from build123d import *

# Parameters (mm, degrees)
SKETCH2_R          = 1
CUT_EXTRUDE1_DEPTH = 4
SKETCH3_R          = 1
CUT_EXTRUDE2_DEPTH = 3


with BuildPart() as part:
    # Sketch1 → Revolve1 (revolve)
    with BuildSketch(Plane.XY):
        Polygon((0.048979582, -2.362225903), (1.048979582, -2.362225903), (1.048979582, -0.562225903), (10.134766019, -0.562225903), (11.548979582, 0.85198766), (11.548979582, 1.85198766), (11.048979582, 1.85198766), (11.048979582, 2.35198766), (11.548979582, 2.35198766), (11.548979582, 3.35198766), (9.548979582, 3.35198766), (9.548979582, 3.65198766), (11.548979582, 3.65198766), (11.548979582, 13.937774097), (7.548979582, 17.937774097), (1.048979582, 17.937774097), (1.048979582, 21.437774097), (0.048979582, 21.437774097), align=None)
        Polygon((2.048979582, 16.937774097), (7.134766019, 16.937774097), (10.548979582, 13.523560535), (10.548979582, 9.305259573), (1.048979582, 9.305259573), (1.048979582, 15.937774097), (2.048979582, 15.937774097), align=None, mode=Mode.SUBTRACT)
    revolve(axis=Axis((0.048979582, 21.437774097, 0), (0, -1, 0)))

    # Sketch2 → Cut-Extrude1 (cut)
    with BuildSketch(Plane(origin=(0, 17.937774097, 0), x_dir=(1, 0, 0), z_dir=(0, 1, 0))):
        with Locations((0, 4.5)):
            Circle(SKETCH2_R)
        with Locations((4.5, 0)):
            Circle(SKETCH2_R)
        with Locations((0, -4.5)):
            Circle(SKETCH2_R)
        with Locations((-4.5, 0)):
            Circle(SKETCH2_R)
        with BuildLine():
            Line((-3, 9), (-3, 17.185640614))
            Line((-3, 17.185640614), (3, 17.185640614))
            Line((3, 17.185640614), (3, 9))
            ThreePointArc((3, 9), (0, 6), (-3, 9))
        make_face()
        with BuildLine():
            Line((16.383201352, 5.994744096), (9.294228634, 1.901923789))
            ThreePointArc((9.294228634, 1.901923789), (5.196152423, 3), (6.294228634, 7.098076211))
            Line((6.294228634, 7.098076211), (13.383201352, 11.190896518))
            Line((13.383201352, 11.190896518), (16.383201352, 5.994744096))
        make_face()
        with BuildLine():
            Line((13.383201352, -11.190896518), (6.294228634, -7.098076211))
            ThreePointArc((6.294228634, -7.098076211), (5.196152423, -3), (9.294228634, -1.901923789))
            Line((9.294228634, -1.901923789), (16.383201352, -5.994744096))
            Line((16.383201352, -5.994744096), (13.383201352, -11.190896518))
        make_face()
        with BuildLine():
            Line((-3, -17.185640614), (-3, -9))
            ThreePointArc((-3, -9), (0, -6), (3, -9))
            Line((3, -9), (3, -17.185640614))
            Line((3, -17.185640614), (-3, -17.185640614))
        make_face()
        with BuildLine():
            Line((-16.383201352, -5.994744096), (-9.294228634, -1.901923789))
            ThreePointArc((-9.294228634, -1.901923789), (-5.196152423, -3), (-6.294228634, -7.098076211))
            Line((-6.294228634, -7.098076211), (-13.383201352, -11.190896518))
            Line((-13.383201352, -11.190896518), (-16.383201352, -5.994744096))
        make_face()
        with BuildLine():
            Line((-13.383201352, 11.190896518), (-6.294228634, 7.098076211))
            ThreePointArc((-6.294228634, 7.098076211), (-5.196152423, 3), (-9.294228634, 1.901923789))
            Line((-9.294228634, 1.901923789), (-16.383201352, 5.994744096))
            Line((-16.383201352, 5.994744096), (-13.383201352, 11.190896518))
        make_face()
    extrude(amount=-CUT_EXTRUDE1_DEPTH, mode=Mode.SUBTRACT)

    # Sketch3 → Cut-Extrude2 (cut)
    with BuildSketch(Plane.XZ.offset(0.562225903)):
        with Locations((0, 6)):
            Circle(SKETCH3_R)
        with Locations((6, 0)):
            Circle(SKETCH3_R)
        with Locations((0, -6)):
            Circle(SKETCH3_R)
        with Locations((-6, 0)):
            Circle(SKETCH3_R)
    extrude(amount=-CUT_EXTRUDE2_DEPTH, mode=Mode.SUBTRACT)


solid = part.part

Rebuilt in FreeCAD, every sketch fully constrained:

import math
import FreeCAD as App
import Part
import Sketcher
from FreeCAD import Vector
Q = App.Units.Quantity

doc = App.newDocument("Part")
body = doc.addObject("PartDesign::Body", "Body")

sketch1 = body.newObject("Sketcher::SketchObject", "Sketch")
sketch1.AttachmentSupport = (doc.getObject("XY_Plane"), [""])
sketch1.MapMode = "FlatFace"
sketch1.addGeometry(Part.LineSegment(Vector(0.05, -2.36, 0), Vector(1.05, -2.36, 0)), False)
sketch1.addGeometry(Part.LineSegment(Vector(1.05, -2.36, 0), Vector(1.05, -0.56, 0)), False)
sketch1.addGeometry(Part.LineSegment(Vector(1.05, -0.56, 0), Vector(10.13, -0.56, 0)), False)
sketch1.addGeometry(Part.LineSegment(Vector(10.13, -0.56, 0), Vector(11.55, 0.85, 0)), False)
sketch1.addGeometry(Part.LineSegment(Vector(11.55, 0.85, 0), Vector(11.55, 1.85, 0)), False)
sketch1.addGeometry(Part.LineSegment(Vector(11.55, 1.85, 0), Vector(11.05, 1.85, 0)), False)
sketch1.addGeometry(Part.LineSegment(Vector(11.05, 1.85, 0), Vector(11.05, 2.35, 0)), False)
sketch1.addGeometry(Part.LineSegment(Vector(11.05, 2.35, 0), Vector(11.55, 2.35, 0)), False)
sketch1.addGeometry(Part.LineSegment(Vector(11.55, 2.35, 0), Vector(11.55, 3.35, 0)), False)
sketch1.addGeometry(Part.LineSegment(Vector(11.55, 3.35, 0), Vector(9.55, 3.35, 0)), False)
sketch1.addGeometry(Part.LineSegment(Vector(9.55, 3.35, 0), Vector(9.55, 3.65, 0)), False)
sketch1.addGeometry(Part.LineSegment(Vector(9.55, 3.65, 0), Vector(11.55, 3.65, 0)), False)
sketch1.addGeometry(Part.LineSegment(Vector(11.55, 3.65, 0), Vector(11.55, 13.94, 0)), False)
sketch1.addGeometry(Part.LineSegment(Vector(11.55, 13.94, 0), Vector(7.55, 17.94, 0)), False)
sketch1.addGeometry(Part.LineSegment(Vector(7.55, 17.94, 0), Vector(1.05, 17.94, 0)), False)
sketch1.addGeometry(Part.LineSegment(Vector(1.05, 17.94, 0), Vector(1.05, 21.44, 0)), False)
sketch1.addGeometry(Part.LineSegment(Vector(1.05, 21.44, 0), Vector(0.05, 21.44, 0)), False)
sketch1.addGeometry(Part.LineSegment(Vector(0.05, 21.44, 0), Vector(0.05, -2.36, 0)), False)
sketch1.addGeometry(Part.LineSegment(Vector(2.05, 15.94, 0), Vector(2.05, 16.94, 0)), False)
sketch1.addGeometry(Part.LineSegment(Vector(2.05, 16.94, 0), Vector(7.13, 16.94, 0)), False)
sketch1.addGeometry(Part.LineSegment(Vector(7.13, 16.94, 0), Vector(10.55, 13.52, 0)), False)
sketch1.addGeometry(Part.LineSegment(Vector(10.55, 13.52, 0), Vector(10.55, 9.31, 0)), False)
sketch1.addGeometry(Part.LineSegment(Vector(10.55, 9.31, 0), Vector(1.05, 9.31, 0)), False)
sketch1.addGeometry(Part.LineSegment(Vector(1.05, 9.31, 0), Vector(1.05, 15.94, 0)), False)
sketch1.addGeometry(Part.LineSegment(Vector(1.05, 15.94, 0), Vector(2.05, 15.94, 0)), False)
sketch1.addGeometry(Part.LineSegment(Vector(0.05, 21.44, 0), Vector(0.05, -2.36, 0)), True)
sketch1.addConstraint(Sketcher.Constraint("Coincident", 0, 2, 1, 1))
sketch1.addConstraint(Sketcher.Constraint("Coincident", 1, 2, 2, 1))
sketch1.addConstraint(Sketcher.Constraint("Coincident", 2, 2, 3, 1))
sketch1.addConstraint(Sketcher.Constraint("Coincident", 3, 2, 4, 1))
sketch1.addConstraint(Sketcher.Constraint("Coincident", 4, 2, 5, 1))
sketch1.addConstraint(Sketcher.Constraint("Coincident", 5, 2, 6, 1))
sketch1.addConstraint(Sketcher.Constraint("Coincident", 6, 2, 7, 1))
sketch1.addConstraint(Sketcher.Constraint("Coincident", 7, 2, 8, 1))
sketch1.addConstraint(Sketcher.Constraint("Coincident", 8, 2, 9, 1))
sketch1.addConstraint(Sketcher.Constraint("Coincident", 9, 2, 10, 1))
sketch1.addConstraint(Sketcher.Constraint("Coincident", 10, 2, 11, 1))
sketch1.addConstraint(Sketcher.Constraint("Coincident", 11, 2, 12, 1))
sketch1.addConstraint(Sketcher.Constraint("Coincident", 12, 2, 13, 1))
sketch1.addConstraint(Sketcher.Constraint("Coincident", 13, 2, 14, 1))
sketch1.addConstraint(Sketcher.Constraint("Coincident", 14, 2, 15, 1))
sketch1.addConstraint(Sketcher.Constraint("Coincident", 15, 2, 16, 1))
sketch1.addConstraint(Sketcher.Constraint("Coincident", 16, 2, 17, 1))
sketch1.addConstraint(Sketcher.Constraint("Coincident", 17, 2, 0, 1))
sketch1.addConstraint(Sketcher.Constraint("Coincident", 18, 2, 19, 1))
sketch1.addConstraint(Sketcher.Constraint("Coincident", 19, 2, 20, 1))
sketch1.addConstraint(Sketcher.Constraint("Coincident", 20, 2, 21, 1))
sketch1.addConstraint(Sketcher.Constraint("Coincident", 21, 2, 22, 1))
sketch1.addConstraint(Sketcher.Constraint("Coincident", 22, 2, 23, 1))
sketch1.addConstraint(Sketcher.Constraint("Coincident", 23, 2, 24, 1))
sketch1.addConstraint(Sketcher.Constraint("Coincident", 24, 2, 18, 1))
sketch1.addConstraint(Sketcher.Constraint("Horizontal", 0))
sketch1.addConstraint(Sketcher.Constraint("Vertical", 1))
sketch1.addConstraint(Sketcher.Constraint("Horizontal", 2))
sketch1.addConstraint(Sketcher.Constraint("Vertical", 4))
sketch1.addConstraint(Sketcher.Constraint("Horizontal", 5))
sketch1.addConstraint(Sketcher.Constraint("Vertical", 6))
sketch1.addConstraint(Sketcher.Constraint("Horizontal", 7))
sketch1.addConstraint(Sketcher.Constraint("Vertical", 8))
sketch1.addConstraint(Sketcher.Constraint("Horizontal", 9))
sketch1.addConstraint(Sketcher.Constraint("Vertical", 10))
sketch1.addConstraint(Sketcher.Constraint("Horizontal", 11))
sketch1.addConstraint(Sketcher.Constraint("Vertical", 12))
sketch1.addConstraint(Sketcher.Constraint("Horizontal", 14))
sketch1.addConstraint(Sketcher.Constraint("Vertical", 15))
sketch1.addConstraint(Sketcher.Constraint("Horizontal", 16))
sketch1.addConstraint(Sketcher.Constraint("Vertical", 17))
sketch1.addConstraint(Sketcher.Constraint("Vertical", 18))
sketch1.addConstraint(Sketcher.Constraint("Horizontal", 19))
sketch1.addConstraint(Sketcher.Constraint("Vertical", 21))
sketch1.addConstraint(Sketcher.Constraint("Horizontal", 22))
sketch1.addConstraint(Sketcher.Constraint("Vertical", 23))
sketch1.addConstraint(Sketcher.Constraint("Horizontal", 24))
sketch1.addConstraint(Sketcher.Constraint("Vertical", 25))
sketch1.addConstraint(Sketcher.Constraint("Coincident", 25, 1, 16, 2))
sketch1.addConstraint(Sketcher.Constraint("Perpendicular", 3, 13))
sketch1.addConstraint(Sketcher.Constraint("Parallel", 13, 20))
sketch1.addConstraint(Sketcher.Constraint("Horizontal", 0, 2, 25, 2))
sketch1.addConstraint(Sketcher.Constraint("Vertical", 4, 2, 7, 2))
sketch1.addConstraint(Sketcher.Constraint("Vertical", 8, 2, 11, 2))
sketch1.addConstraint(Sketcher.Constraint("Vertical", 1, 2, 14, 2))
sketch1.addConstraint(Sketcher.Constraint("Vertical", 15, 2, 22, 2))
sketch1.addConstraint(Sketcher.Constraint("Equal", 16, 24))
sketch1.addConstraint(Sketcher.Constraint("Equal", 24, 4))
sketch1.addConstraint(Sketcher.Constraint("Equal", 7, 6))
sketch1.addConstraint(Sketcher.Constraint("Equal", 4, 8))
sketch1.addConstraint(Sketcher.Constraint("Equal", 8, 18))
sketch1.addConstraint(Sketcher.Constraint("DistanceX", 0, 1, 0, 2, 1.0))
sketch1.addConstraint(Sketcher.Constraint("DistanceX", 9, 2, 9, 1, 2.0))
sketch1.addConstraint(Sketcher.Constraint("Angle", 3, Q("45 deg")))
sketch1.addConstraint(Sketcher.Constraint("Distance", 3, 2.0))
sketch1.addConstraint(Sketcher.Constraint("DistanceX", 5, 2, 5, 1, 0.5))
sketch1.addConstraint(Sketcher.Constraint("DistanceX", 14, 2, 14, 1, 6.5))
sketch1.addConstraint(Sketcher.Constraint("DistanceX", 22, 2, 22, 1, 9.5))
sketch1.addConstraint(Sketcher.Constraint("DistanceY", 1, 1, 1, 2, 1.8))
sketch1.addConstraint(Sketcher.Constraint("DistanceY", 10, 1, 10, 2, 0.3))
sketch1.addConstraint(Sketcher.Constraint("DistanceY", 15, 1, 15, 2, 3.5))
sketch1.addConstraint(Sketcher.Constraint("DistanceY", 17, 2, 17, 1, 23.8))
sketch1.addConstraint(Sketcher.Constraint("DistanceX", 1, 2, 5, 2, 10.0))
sketch1.addConstraint(Sketcher.Constraint("DistanceY", 18, 2, 14, 2, 1.0))
sketch1.addConstraint(Sketcher.Constraint("DistanceY", 21, 2, 21, 1, 4.218301))
sketch1.addConstraint(Sketcher.Constraint("DistanceX", 19, 1, 19, 2, 5.085786))
sketch1.addConstraint(Sketcher.Constraint("DistanceX", -1, 1, 0, 2, 1.04898))
sketch1.addConstraint(Sketcher.Constraint("DistanceY", -1, 1, 20, 2, 13.523561))
revolution = body.newObject("PartDesign::Revolution", "Revolution")
revolution.Profile = sketch1
revolution.ReferenceAxis = (sketch1, ["Axis0"])
revolution.Angle = 360

sketch2 = body.newObject("Sketcher::SketchObject", "Sketch001")
sketch2.AttachmentSupport = (doc.getObject("XZ_Plane"), [""])
sketch2.MapMode = "FlatFace"
sketch2.AttachmentOffset = App.Placement(Vector(0, 0, -17.937774), App.Rotation())
sketch2.addGeometry(Part.Circle(Vector(0, -4.5, 0), Vector(0, 0, 1), 1), False)
sketch2.addGeometry(Part.Circle(Vector(4.5, 0, 0), Vector(0, 0, 1), 1), False)
sketch2.addGeometry(Part.Circle(Vector(0, 4.5, 0), Vector(0, 0, 1), 1), False)
sketch2.addGeometry(Part.Circle(Vector(-4.5, 0, 0), Vector(0, 0, 1), 1), False)
sketch2.addGeometry(Part.LineSegment(Vector(-3, -17.2, 0), Vector(-3, -9, 0)), False)
sketch2.addGeometry(Part.ArcOfCircle(Part.Circle(Vector(0, -9, 0), Vector(0, 0, 1), 3), math.radians(0), math.radians(180)), False)
sketch2.addGeometry(Part.LineSegment(Vector(3, -9, 0), Vector(3, -17.2, 0)), False)
sketch2.addGeometry(Part.LineSegment(Vector(3, -17.2, 0), Vector(-3, -17.2, 0)), False)
sketch2.addGeometry(Part.LineSegment(Vector(9.3, -1.9, 0), Vector(16.4, -6, 0)), False)
sketch2.addGeometry(Part.LineSegment(Vector(16.4, -6, 0), Vector(13.4, -11.2, 0)), False)
sketch2.addGeometry(Part.LineSegment(Vector(13.4, -11.2, 0), Vector(6.3, -7.1, 0)), False)
sketch2.addGeometry(Part.ArcOfCircle(Part.Circle(Vector(7.8, -4.5, 0), Vector(0, 0, 1), 3), math.radians(60), math.radians(240)), False)
sketch2.addGeometry(Part.LineSegment(Vector(6.3, 7.1, 0), Vector(13.4, 11.2, 0)), False)
sketch2.addGeometry(Part.LineSegment(Vector(13.4, 11.2, 0), Vector(16.4, 6, 0)), False)
sketch2.addGeometry(Part.LineSegment(Vector(16.4, 6, 0), Vector(9.3, 1.9, 0)), False)
sketch2.addGeometry(Part.ArcOfCircle(Part.Circle(Vector(7.8, 4.5, 0), Vector(0, 0, 1), 3), math.radians(120), math.radians(300)), False)
sketch2.addGeometry(Part.LineSegment(Vector(-3, 9, 0), Vector(-3, 17.2, 0)), False)
sketch2.addGeometry(Part.LineSegment(Vector(-3, 17.2, 0), Vector(3, 17.2, 0)), False)
sketch2.addGeometry(Part.LineSegment(Vector(3, 17.2, 0), Vector(3, 9, 0)), False)
sketch2.addGeometry(Part.ArcOfCircle(Part.Circle(Vector(0, 9, 0), Vector(0, 0, 1), 3), math.radians(180), math.radians(360)), False)
sketch2.addGeometry(Part.LineSegment(Vector(-9.3, 1.9, 0), Vector(-16.4, 6, 0)), False)
sketch2.addGeometry(Part.LineSegment(Vector(-16.4, 6, 0), Vector(-13.4, 11.2, 0)), False)
sketch2.addGeometry(Part.LineSegment(Vector(-13.4, 11.2, 0), Vector(-6.3, 7.1, 0)), False)
sketch2.addGeometry(Part.ArcOfCircle(Part.Circle(Vector(-7.8, 4.5, 0), Vector(0, 0, 1), 3), math.radians(-120), math.radians(60)), False)
sketch2.addGeometry(Part.LineSegment(Vector(-6.3, -7.1, 0), Vector(-13.4, -11.2, 0)), False)
sketch2.addGeometry(Part.LineSegment(Vector(-13.4, -11.2, 0), Vector(-16.4, -6, 0)), False)
sketch2.addGeometry(Part.LineSegment(Vector(-16.4, -6, 0), Vector(-9.3, -1.9, 0)), False)
sketch2.addGeometry(Part.ArcOfCircle(Part.Circle(Vector(-7.8, -4.5, 0), Vector(0, 0, 1), 3), math.radians(-60), math.radians(120)), False)
sketch2.addConstraint(Sketcher.Constraint("Tangent", 4, 2, 5, 2))
sketch2.addConstraint(Sketcher.Constraint("Tangent", 5, 1, 6, 1))
sketch2.addConstraint(Sketcher.Constraint("Coincident", 6, 2, 7, 1))
sketch2.addConstraint(Sketcher.Constraint("Coincident", 7, 2, 4, 1))
sketch2.addConstraint(Sketcher.Constraint("Coincident", 8, 2, 9, 1))
sketch2.addConstraint(Sketcher.Constraint("Coincident", 9, 2, 10, 1))
sketch2.addConstraint(Sketcher.Constraint("Tangent", 10, 2, 11, 2))
sketch2.addConstraint(Sketcher.Constraint("Tangent", 11, 1, 8, 1))
sketch2.addConstraint(Sketcher.Constraint("Coincident", 12, 2, 13, 1))
sketch2.addConstraint(Sketcher.Constraint("Coincident", 13, 2, 14, 1))
sketch2.addConstraint(Sketcher.Constraint("Tangent", 14, 2, 15, 2))
sketch2.addConstraint(Sketcher.Constraint("Tangent", 15, 1, 12, 1))
sketch2.addConstraint(Sketcher.Constraint("Coincident", 16, 2, 17, 1))
sketch2.addConstraint(Sketcher.Constraint("Coincident", 17, 2, 18, 1))
sketch2.addConstraint(Sketcher.Constraint("Tangent", 18, 2, 19, 2))
sketch2.addConstraint(Sketcher.Constraint("Tangent", 19, 1, 16, 1))
sketch2.addConstraint(Sketcher.Constraint("Coincident", 20, 2, 21, 1))
sketch2.addConstraint(Sketcher.Constraint("Coincident", 21, 2, 22, 1))
sketch2.addConstraint(Sketcher.Constraint("Tangent", 22, 2, 23, 2))
sketch2.addConstraint(Sketcher.Constraint("Tangent", 23, 1, 20, 1))
sketch2.addConstraint(Sketcher.Constraint("Coincident", 24, 2, 25, 1))
sketch2.addConstraint(Sketcher.Constraint("Coincident", 25, 2, 26, 1))
sketch2.addConstraint(Sketcher.Constraint("Tangent", 26, 2, 27, 2))
sketch2.addConstraint(Sketcher.Constraint("Tangent", 27, 1, 24, 1))
sketch2.addConstraint(Sketcher.Constraint("Vertical", 4))
sketch2.addConstraint(Sketcher.Constraint("Vertical", 6))
sketch2.addConstraint(Sketcher.Constraint("Horizontal", 7))
sketch2.addConstraint(Sketcher.Constraint("Vertical", 16))
sketch2.addConstraint(Sketcher.Constraint("Horizontal", 17))
sketch2.addConstraint(Sketcher.Constraint("Vertical", 18))
sketch2.addConstraint(Sketcher.Constraint("Equal", 0, 1))
sketch2.addConstraint(Sketcher.Constraint("Equal", 1, 2))
sketch2.addConstraint(Sketcher.Constraint("Equal", 2, 3))
sketch2.addConstraint(Sketcher.Constraint("Equal", 5, 11))
sketch2.addConstraint(Sketcher.Constraint("Equal", 11, 15))
sketch2.addConstraint(Sketcher.Constraint("Equal", 15, 19))
sketch2.addConstraint(Sketcher.Constraint("Equal", 19, 23))
sketch2.addConstraint(Sketcher.Constraint("Equal", 23, 27))
sketch2.addConstraint(Sketcher.Constraint("Symmetric", 0, 3, 2, 3, -1, 1))
sketch2.addConstraint(Sketcher.Constraint("Symmetric", 1, 3, 3, 3, -1, 1))
sketch2.addConstraint(Sketcher.Constraint("Symmetric", 5, 3, 19, 3, -1, 1))
sketch2.addConstraint(Sketcher.Constraint("Symmetric", 11, 3, 23, 3, -1, 1))
sketch2.addConstraint(Sketcher.Constraint("Symmetric", 15, 3, 27, 3, -1, 1))
sketch2.addConstraint(Sketcher.Constraint("Symmetric", 8, 2, 20, 2, -1, 1))
sketch2.addConstraint(Sketcher.Constraint("Symmetric", 9, 2, 21, 2, -1, 1))
sketch2.addConstraint(Sketcher.Constraint("Symmetric", 12, 2, 24, 2, -1, 1))
sketch2.addConstraint(Sketcher.Constraint("Symmetric", 13, 2, 25, 2, -1, 1))
sketch2.addConstraint(Sketcher.Constraint("Symmetric", 15, 3, 23, 3, -2))
sketch2.addConstraint(Sketcher.Constraint("Symmetric", 13, 2, 20, 2, -2))
sketch2.addConstraint(Sketcher.Constraint("Symmetric", 12, 2, 21, 2, -2))
sketch2.addConstraint(Sketcher.Constraint("Symmetric", 7, 2, 16, 2, -1))
sketch2.addConstraint(Sketcher.Constraint("PointOnObject", 0, 3, -2))
sketch2.addConstraint(Sketcher.Constraint("PointOnObject", 1, 3, -1))
sketch2.addConstraint(Sketcher.Constraint("Perpendicular", 8, 9))
sketch2.addConstraint(Sketcher.Constraint("Perpendicular", 9, 10))
sketch2.addConstraint(Sketcher.Constraint("Horizontal", 0, 3, 11, 3))
sketch2.addConstraint(Sketcher.Constraint("Diameter", 0, 2.0))
sketch2.addConstraint(Sketcher.Constraint("Radius", 5, 3.0))
sketch2.addConstraint(Sketcher.Constraint("Angle", 8, Q("-30 deg")))
sketch2.addConstraint(Sketcher.Constraint("DistanceY", 5, 3, -1, 1, 9.0))
sketch2.addConstraint(Sketcher.Constraint("DistanceY", 0, 3, 2, 3, 9.0))
sketch2.addConstraint(Sketcher.Constraint("DistanceX", 3, 3, 1, 3, 9.0))
sketch2.addConstraint(Sketcher.Constraint("DistanceY", 4, 1, 4, 2, 8.185641))
sketch2.addConstraint(Sketcher.Constraint("DistanceX", -1, 1, 8, 2, 16.383201))
sketch2.addConstraint(Sketcher.Constraint("Distance", 8, 8.185641))
pocket1 = body.newObject("PartDesign::Pocket", "Pocket")
pocket1.Profile = sketch2
pocket1.Length = 4
pocket1.Reversed = True

sketch3 = body.newObject("Sketcher::SketchObject", "Sketch002")
sketch3.AttachmentSupport = (doc.getObject("XZ_Plane"), [""])
sketch3.MapMode = "FlatFace"
sketch3.AttachmentOffset = App.Placement(Vector(0, 0, 0.562226), App.Rotation())
sketch3.addGeometry(Part.Circle(Vector(0, 6, 0), Vector(0, 0, 1), 1), False)
sketch3.addGeometry(Part.Circle(Vector(6, 0, 0), Vector(0, 0, 1), 1), False)
sketch3.addGeometry(Part.Circle(Vector(0, -6, 0), Vector(0, 0, 1), 1), False)
sketch3.addGeometry(Part.Circle(Vector(-6, 0, 0), Vector(0, 0, 1), 1), False)
sketch3.addConstraint(Sketcher.Constraint("Equal", 0, 1))
sketch3.addConstraint(Sketcher.Constraint("Equal", 1, 2))
sketch3.addConstraint(Sketcher.Constraint("Equal", 2, 3))
sketch3.addConstraint(Sketcher.Constraint("Symmetric", 0, 3, 2, 3, -1, 1))
sketch3.addConstraint(Sketcher.Constraint("Symmetric", 1, 3, 3, 3, -1, 1))
sketch3.addConstraint(Sketcher.Constraint("PointOnObject", 0, 3, -2))
sketch3.addConstraint(Sketcher.Constraint("PointOnObject", 1, 3, -1))
sketch3.addConstraint(Sketcher.Constraint("Diameter", 0, 2.0))
sketch3.addConstraint(Sketcher.Constraint("DistanceY", -1, 1, 0, 3, 6.0))
sketch3.addConstraint(Sketcher.Constraint("DistanceX", -1, 1, 1, 3, 6.0))
pocket2 = body.newObject("PartDesign::Pocket", "Pocket001")
pocket2.Profile = sketch3
pocket2.Length = 3

doc.recompute()
